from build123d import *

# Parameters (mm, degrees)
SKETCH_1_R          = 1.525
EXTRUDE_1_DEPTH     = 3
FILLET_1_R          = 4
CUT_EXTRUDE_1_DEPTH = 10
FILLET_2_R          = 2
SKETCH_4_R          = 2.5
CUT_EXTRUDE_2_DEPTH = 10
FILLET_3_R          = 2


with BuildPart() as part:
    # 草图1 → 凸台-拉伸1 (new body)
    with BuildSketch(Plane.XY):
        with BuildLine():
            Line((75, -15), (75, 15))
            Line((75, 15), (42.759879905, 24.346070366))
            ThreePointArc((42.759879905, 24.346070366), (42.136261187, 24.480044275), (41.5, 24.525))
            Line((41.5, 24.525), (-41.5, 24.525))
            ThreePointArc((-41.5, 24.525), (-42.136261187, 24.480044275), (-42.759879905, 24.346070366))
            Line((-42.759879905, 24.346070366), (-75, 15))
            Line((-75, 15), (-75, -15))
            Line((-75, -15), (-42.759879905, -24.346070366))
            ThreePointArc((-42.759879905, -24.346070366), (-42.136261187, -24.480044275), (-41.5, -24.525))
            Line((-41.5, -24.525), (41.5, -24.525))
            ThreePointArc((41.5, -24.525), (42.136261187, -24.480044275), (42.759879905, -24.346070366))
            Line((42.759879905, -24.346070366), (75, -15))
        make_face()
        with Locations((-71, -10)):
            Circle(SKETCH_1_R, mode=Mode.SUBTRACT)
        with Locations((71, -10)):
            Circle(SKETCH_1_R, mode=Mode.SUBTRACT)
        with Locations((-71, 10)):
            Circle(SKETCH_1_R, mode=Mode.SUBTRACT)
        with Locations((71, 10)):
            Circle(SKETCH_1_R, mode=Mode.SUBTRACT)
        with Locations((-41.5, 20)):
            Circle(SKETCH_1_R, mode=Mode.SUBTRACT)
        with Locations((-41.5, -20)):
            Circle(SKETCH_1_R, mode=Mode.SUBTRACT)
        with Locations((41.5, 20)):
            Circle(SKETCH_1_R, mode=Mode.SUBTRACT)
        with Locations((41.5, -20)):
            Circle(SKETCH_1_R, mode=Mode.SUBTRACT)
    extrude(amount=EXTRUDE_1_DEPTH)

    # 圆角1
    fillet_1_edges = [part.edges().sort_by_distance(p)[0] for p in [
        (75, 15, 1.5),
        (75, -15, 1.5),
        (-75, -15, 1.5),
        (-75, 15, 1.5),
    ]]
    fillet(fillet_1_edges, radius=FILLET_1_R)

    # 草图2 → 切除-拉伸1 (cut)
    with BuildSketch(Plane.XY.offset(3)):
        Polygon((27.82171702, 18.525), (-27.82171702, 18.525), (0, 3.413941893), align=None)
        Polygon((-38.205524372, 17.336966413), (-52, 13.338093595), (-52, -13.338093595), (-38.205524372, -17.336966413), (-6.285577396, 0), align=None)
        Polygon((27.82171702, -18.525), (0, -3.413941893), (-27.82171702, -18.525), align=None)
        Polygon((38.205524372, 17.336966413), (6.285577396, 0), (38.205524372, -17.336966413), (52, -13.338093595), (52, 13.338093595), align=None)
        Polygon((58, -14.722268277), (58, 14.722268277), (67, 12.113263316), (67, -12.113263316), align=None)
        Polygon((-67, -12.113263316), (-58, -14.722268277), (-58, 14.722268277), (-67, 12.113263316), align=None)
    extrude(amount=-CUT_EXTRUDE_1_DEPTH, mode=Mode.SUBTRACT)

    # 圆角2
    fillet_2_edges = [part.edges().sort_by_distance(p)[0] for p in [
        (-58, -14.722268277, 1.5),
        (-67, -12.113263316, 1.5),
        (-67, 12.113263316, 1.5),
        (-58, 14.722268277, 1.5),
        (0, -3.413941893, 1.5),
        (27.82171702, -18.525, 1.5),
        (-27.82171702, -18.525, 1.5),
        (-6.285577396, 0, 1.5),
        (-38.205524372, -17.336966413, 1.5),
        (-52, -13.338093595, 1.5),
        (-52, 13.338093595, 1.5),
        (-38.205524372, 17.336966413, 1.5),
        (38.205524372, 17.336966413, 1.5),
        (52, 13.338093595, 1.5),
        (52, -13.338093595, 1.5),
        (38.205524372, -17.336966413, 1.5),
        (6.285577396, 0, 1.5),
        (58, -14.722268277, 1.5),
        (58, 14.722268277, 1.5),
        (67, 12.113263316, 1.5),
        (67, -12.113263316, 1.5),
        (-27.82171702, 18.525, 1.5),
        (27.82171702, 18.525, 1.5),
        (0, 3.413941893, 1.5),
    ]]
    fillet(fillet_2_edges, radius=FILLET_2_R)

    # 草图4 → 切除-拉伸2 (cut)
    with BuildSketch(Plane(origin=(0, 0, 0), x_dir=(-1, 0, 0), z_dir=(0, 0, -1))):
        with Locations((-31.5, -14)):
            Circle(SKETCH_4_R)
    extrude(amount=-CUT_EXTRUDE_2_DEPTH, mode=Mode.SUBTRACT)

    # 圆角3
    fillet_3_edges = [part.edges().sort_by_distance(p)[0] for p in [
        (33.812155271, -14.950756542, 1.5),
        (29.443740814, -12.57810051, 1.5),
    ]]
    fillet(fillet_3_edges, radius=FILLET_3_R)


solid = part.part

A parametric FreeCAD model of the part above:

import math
import FreeCAD as App
import Part
import Sketcher

V = App.Vector
Q = App.Units.Quantity


def edges_at(feature, points):
    """Names of the edges that pass closest to the given points."""
    edges = feature.Shape.Edges
    near = lambda p: min(range(len(edges)), key=lambda i: edges[i].distToShape(Part.Vertex(*p))[0])
    return sorted({f"Edge{near(p) + 1}" for p in points})

doc = App.newDocument("Part")
body = doc.addObject("PartDesign::Body", "Body")

# Sketch on XY plane
sketch1 = body.newObject("Sketcher::SketchObject", "Sketch")
sketch1.AttachmentSupport = (doc.getObject("XY_Plane"), [""])
sketch1.MapMode = "FlatFace"
sketch1.addGeometry(Part.LineSegment(V(75, -15, 0), V(75, 15, 0)), False)
sketch1.addGeometry(Part.LineSegment(V(75, 15, 0), V(42.75988, 24.34607, 0)), False)
sketch1.addGeometry(Part.ArcOfCircle(Part.Circle(V(41.5, 20, 0), V(0, 0, 1), 4.525), math.radians(73.833684), math.radians(90)), False)
sketch1.addGeometry(Part.LineSegment(V(41.5, 24.525, 0), V(-41.5, 24.525, 0)), False)
sketch1.addGeometry(Part.ArcOfCircle(Part.Circle(V(-41.5, 20, 0), V(0, 0, 1), 4.525), math.radians(90), math.radians(106.166316)), False)
sketch1.addGeometry(Part.LineSegment(V(-42.75988, 24.34607, 0), V(-75, 15, 0)), False)
sketch1.addGeometry(Part.LineSegment(V(-75, 15, 0), V(-75, -15, 0)), False)
sketch1.addGeometry(Part.LineSegment(V(-75, -15, 0), V(-42.75988, -24.34607, 0)), False)
sketch1.addGeometry(Part.ArcOfCircle(Part.Circle(V(-41.5, -20, 0), V(0, 0, 1), 4.525), math.radians(-106.166316), math.radians(-90)), False)
sketch1.addGeometry(Part.LineSegment(V(-41.5, -24.525, 0), V(41.5, -24.525, 0)), False)
sketch1.addGeometry(Part.ArcOfCircle(Part.Circle(V(41.5, -20, 0), V(0, 0, 1), 4.525), math.radians(-90), math.radians(-73.833684)), False)
sketch1.addGeometry(Part.LineSegment(V(42.75988, -24.34607, 0), V(75, -15, 0)), False)
sketch1.addGeometry(Part.Circle(V(-41.5, -20, 0), V(0, 0, 1), 1.525), False)
sketch1.addGeometry(Part.Circle(V(-71, -10, 0), V(0, 0, 1), 1.525), False)
sketch1.addGeometry(Part.Circle(V(41.5, -20, 0), V(0, 0, 1), 1.525), False)
sketch1.addGeometry(Part.Circle(V(71, -10, 0), V(0, 0, 1), 1.525), False)
sketch1.addGeometry(Part.Circle(V(-71, 10, 0), V(0, 0, 1), 1.525), False)
sketch1.addGeometry(Part.Circle(V(-41.5, 20, 0), V(0, 0, 1), 1.525), False)
sketch1.addGeometry(Part.Circle(V(71, 10, 0), V(0, 0, 1), 1.525), False)
sketch1.addGeometry(Part.Circle(V(41.5, 20, 0), V(0, 0, 1), 1.525), False)
sketch1.addConstraint(Sketcher.Constraint("Coincident", 0, 2, 1, 1))
sketch1.addConstraint(Sketcher.Constraint("Tangent", 1, 2, 2, 1))
sketch1.addConstraint(Sketcher.Constraint("Tangent", 2, 2, 3, 1))
sketch1.addConstraint(Sketcher.Constraint("Tangent", 3, 2, 4, 1))
sketch1.addConstraint(Sketcher.Constraint("Tangent", 4, 2, 5, 1))
sketch1.addConstraint(Sketcher.Constraint("Coincident", 5, 2, 6, 1))
sketch1.addConstraint(Sketcher.Constraint("Coincident", 6, 2, 7, 1))
sketch1.addConstraint(Sketcher.Constraint("Tangent", 7, 2, 8, 1))
sketch1.addConstraint(Sketcher.Constraint("Tangent", 8, 2, 9, 1))
sketch1.addConstraint(Sketcher.Constraint("Tangent", 9, 2, 10, 1))
sketch1.addConstraint(Sketcher.Constraint("Tangent", 10, 2, 11, 1))
sketch1.addConstraint(Sketcher.Constraint("Coincident", 11, 2, 0, 1))
sketch1.addConstraint(Sketcher.Constraint("Vertical", 0))
sketch1.addConstraint(Sketcher.Constraint("Horizontal", 3))
sketch1.addConstraint(Sketcher.Constraint("Vertical", 6))
sketch1.addConstraint(Sketcher.Constraint("Horizontal", 9))
sketch1.addConstraint(Sketcher.Constraint("Coincident", 12, 3, 8, 3))
sketch1.addConstraint(Sketcher.Constraint("Coincident", 14, 3, 10, 3))
sketch1.addConstraint(Sketcher.Constraint("Coincident", 17, 3, 4, 3))
sketch1.addConstraint(Sketcher.Constraint("Coincident", 19, 3, 2, 3))
sketch1.addConstraint(Sketcher.Constraint("Equal", 2, 4))
sketch1.addConstraint(Sketcher.Constraint("Equal", 4, 8))
sketch1.addConstraint(Sketcher.Constraint("Equal", 8, 10))
sketch1.addConstraint(Sketcher.Constraint("Equal", 12, 13))
sketch1.addConstraint(Sketcher.Constraint("Equal", 13, 14))
sketch1.addConstraint(Sketcher.Constraint("Equal", 14, 15))
sketch1.addConstraint(Sketcher.Constraint("Equal", 15, 16))
sketch1.addConstraint(Sketcher.Constraint("Equal", 16, 17))
sketch1.addConstraint(Sketcher.Constraint("Equal", 17, 18))
sketch1.addConstraint(Sketcher.Constraint("Equal", 18, 19))
sketch1.addConstraint(Sketcher.Constraint("Symmetric", 2, 3, 8, 3, -1, 1))
sketch1.addConstraint(Sketcher.Constraint("Symmetric", 15, 3, 16, 3, -1, 1))
sketch1.addConstraint(Sketcher.Constraint("Symmetric", 13, 3, 18, 3, -1, 1))
sketch1.addConstraint(Sketcher.Constraint("Symmetric", 0, 2, 6, 2, -1, 1))
sketch1.addConstraint(Sketcher.Constraint("Symmetric", 4, 2, 10, 2, -1, 1))
sketch1.addConstraint(Sketcher.Constraint("Symmetric", 13, 3, 15, 3, -2))
sketch1.addConstraint(Sketcher.Constraint("Symmetric", 1, 2, 4, 2, -2))
sketch1.addConstraint(Sketcher.Constraint("Diameter", 12, Q("3.05 mm")))
sketch1.addConstraint(Sketcher.Constraint("DistanceX", 3, 2, 3, 1, Q("83 mm")))
sketch1.addConstraint(Sketcher.Constraint("DistanceY", 0, 1, 0, 2, Q("30 mm")))
sketch1.addConstraint(Sketcher.Constraint("DistanceY", -1, 1, 2, 3, Q("20 mm")))
sketch1.addConstraint(Sketcher.Constraint("DistanceX", 13, 3, -1, 1, Q("71 mm")))
sketch1.addConstraint(Sketcher.Constraint("DistanceY", 13, 3, -1, 1, Q("10 mm")))
sketch1.addConstraint(Sketcher.Constraint("DistanceX", -1, 1, 0, 2, Q("75 mm")))
sketch1.addConstraint(Sketcher.Constraint("Radius", 2, Q("4.525 mm")))
pad1 = body.newObject("PartDesign::Pad", "Pad")
pad1.Profile = sketch1
pad1.Length = 3
doc.recompute()

fillet = body.newObject("PartDesign::Fillet", "Fillet")
fillet.Base = (pad1, edges_at(pad1, [
    (75, 15, 1.5),
    (75, -15, 1.5),
    (-75, -15, 1.5),
    (-75, 15, 1.5),
]))
fillet.Radius = 4

# Sketch on XY plane
sketch2 = body.newObject("Sketcher::SketchObject", "Sketch001")
sketch2.AttachmentSupport = (doc.getObject("XY_Plane"), [""])
sketch2.MapMode = "FlatFace"
sketch2.AttachmentOffset = App.Placement(V(0, 0, 3), App.Rotation())
sketch2.addGeometry(Part.LineSegment(V(27.821717, 18.525, 0), V(-27.821717, 18.525, 0)), False)
sketch2.addGeometry(Part.LineSegment(V(-27.821717, 18.525, 0), V(0, 3.413942, 0)), False)
sketch2.addGeometry(Part.LineSegment(V(0, 3.413942, 0), V(27.821717, 18.525, 0)), False)
sketch2.addGeometry(Part.LineSegment(V(-38.205524, 17.336966, 0), V(-52, 13.338094, 0)), False)
sketch2.addGeometry(Part.LineSegment(V(-52, 13.338094, 0), V(-52, -13.338094, 0)), False)
sketch2.addGeometry(Part.LineSegment(V(-52, -13.338094, 0), V(-38.205524, -17.336966, 0)), False)
sketch2.addGeometry(Part.LineSegment(V(-38.205524, -17.336966, 0), V(-6.285577, 0, 0)), False)
sketch2.addGeometry(Part.LineSegment(V(-6.285577, 0, 0), V(-38.205524, 17.336966, 0)), False)
sketch2.addGeometry(Part.LineSegment(V(27.821717, -18.525, 0), V(0, -3.413942, 0)), False)
sketch2.addGeometry(Part.LineSegment(V(0, -3.413942, 0), V(-27.821717, -18.525, 0)), False)
sketch2.addGeometry(Part.LineSegment(V(-27.821717, -18.525, 0), V(27.821717, -18.525, 0)), False)
sketch2.addGeometry(Part.LineSegment(V(38.205524, 17.336966, 0), V(6.285577, 0, 0)), False)
sketch2.addGeometry(Part.LineSegment(V(6.285577, 0, 0), V(38.205524, -17.336966, 0)), False)
sketch2.addGeometry(Part.LineSegment(V(38.205524, -17.336966, 0), V(52, -13.338094, 0)), False)
sketch2.addGeometry(Part.LineSegment(V(52, -13.338094, 0), V(52, 13.338094, 0)), False)
sketch2.addGeometry(Part.LineSegment(V(52, 13.338094, 0), V(38.205524, 17.336966, 0)), False)
sketch2.addGeometry(Part.LineSegment(V(58, 14.722268, 0), V(58, -14.722268, 0)), False)
sketch2.addGeometry(Part.LineSegment(V(58, -14.722268, 0), V(67, -12.113263, 0)), False)
sketch2.addGeometry(Part.LineSegment(V(67, -12.113263, 0), V(67, 12.113263, 0)), False)
sketch2.addGeometry(Part.LineSegment(V(67, 12.113263, 0), V(58, 14.722268, 0)), False)
sketch2.addGeometry(Part.LineSegment(V(-67, -12.113263, 0), V(-58, -14.722268, 0)), False)
sketch2.addGeometry(Part.LineSegment(V(-58, -14.722268, 0), V(-58, 14.722268, 0)), False)
sketch2.addGeometry(Part.LineSegment(V(-58, 14.722268, 0), V(-67, 12.113263, 0)), False)
sketch2.addGeometry(Part.LineSegment(V(-67, 12.113263, 0), V(-67, -12.113263, 0)), False)
sketch2.addConstraint(Sketcher.Constraint("Coincident", 0, 2, 1, 1))
sketch2.addConstraint(Sketcher.Constraint("Coincident", 1, 2, 2, 1))
sketch2.addConstraint(Sketcher.Constraint("Coincident", 2, 2, 0, 1))
sketch2.addConstraint(Sketcher.Constraint("Coincident", 3, 2, 4, 1))
sketch2.addConstraint(Sketcher.Constraint("Coincident", 4, 2, 5, 1))
sketch2.addConstraint(Sketcher.Constraint("Coincident", 5, 2, 6, 1))
sketch2.addConstraint(Sketcher.Constraint("Coincident", 6, 2, 7, 1))
sketch2.addConstraint(Sketcher.Constraint("Coincident", 7, 2, 3, 1))
sketch2.addConstraint(Sketcher.Constraint("Coincident", 8, 2, 9, 1))
sketch2.addConstraint(Sketcher.Constraint("Coincident", 9, 2, 10, 1))
sketch2.addConstraint(Sketcher.Constraint("Coincident", 10, 2, 8, 1))
sketch2.addConstraint(Sketcher.Constraint("Coincident", 11, 2, 12, 1))
sketch2.addConstraint(Sketcher.Constraint("Coincident", 12, 2, 13, 1))
sketch2.addConstraint(Sketcher.Constraint("Coincident", 13, 2, 14, 1))
sketch2.addConstraint(Sketcher.Constraint("Coincident", 14, 2, 15, 1))
sketch2.addConstraint(Sketcher.Constraint("Coincident", 15, 2, 11, 1))
sketch2.addConstraint(Sketcher.Constraint("Coincident", 16, 2, 17, 1))
sketch2.addConstraint(Sketcher.Constraint("Coincident", 17, 2, 18, 1))
sketch2.addConstraint(Sketcher.Constraint("Coincident", 18, 2, 19, 1))
sketch2.addConstraint(Sketcher.Constraint("Coincident", 19, 2, 16, 1))
sketch2.addConstraint(Sketcher.Constraint("Coincident", 20, 2, 21, 1))
sketch2.addConstraint(Sketcher.Constraint("Coincident", 21, 2, 22, 1))
sketch2.addConstraint(Sketcher.Constraint("Coincident", 22, 2, 23, 1))
sketch2.addConstraint(Sketcher.Constraint("Coincident", 23, 2, 20, 1))
sketch2.addConstraint(Sketcher.Constraint("Horizontal", 0))
sketch2.addConstraint(Sketcher.Constraint("Vertical", 4))
sketch2.addConstraint(Sketcher.Constraint("Horizontal", 10))
sketch2.addConstraint(Sketcher.Constraint("Vertical", 14))
sketch2.addConstraint(Sketcher.Constraint("Vertical", 16))
sketch2.addConstraint(Sketcher.Constraint("Vertical", 18))
sketch2.addConstraint(Sketcher.Constraint("Vertical", 21))
sketch2.addConstraint(Sketcher.Constraint("Vertical", 23))
sketch2.addConstraint(Sketcher.Constraint("Symmetric", 1, 2, 8, 2, -1, 1))
sketch2.addConstraint(Sketcher.Constraint("Symmetric", 2, 2, 9, 2, -1, 1))
sketch2.addConstraint(Sketcher.Constraint("Symmetric", 6, 2, 11, 2, -1, 1))
sketch2.addConstraint(Sketcher.Constraint("Symmetric", 7, 2, 12, 2, -1, 1))
sketch2.addConstraint(Sketcher.Constraint("Symmetric", 3, 2, 13, 2, -1, 1))
sketch2.addConstraint(Sketcher.Constraint("Symmetric", 5, 2, 15, 2, -1, 1))
sketch2.addConstraint(Sketcher.Constraint("Symmetric", 19, 2, 20, 2, -1, 1))
sketch2.addConstraint(Sketcher.Constraint("Symmetric", 17, 2, 22, 2, -1, 1))
sketch2.addConstraint(Sketcher.Constraint("Symmetric", 5, 2, 12, 2, -2))
sketch2.addConstraint(Sketcher.Constraint("PointOnObject", 1, 2, -2))
sketch2.addConstraint(Sketcher.Constraint("PointOnObject", 6, 2, -1))
sketch2.addConstraint(Sketcher.Constraint("Parallel", 2, 6))
sketch2.addConstraint(Sketcher.Constraint("Parallel", 1, 7))
sketch2.addConstraint(Sketcher.Constraint("Parallel", 7, 8))
sketch2.addConstraint(Sketcher.Constraint("Parallel", 5, 15))
sketch2.addConstraint(Sketcher.Constraint("Parallel", 13, 17))
sketch2.addConstraint(Sketcher.Constraint("Parallel", 15, 19))
sketch2.addConstraint(Sketcher.Constraint("Parallel", 19, 20))
sketch2.addConstraint(Sketcher.Constraint("Parallel", 17, 22))
sketch2.addConstraint(Sketcher.Constraint("Horizontal", 4, 2, 13, 2))
sketch2.addConstraint(Sketcher.Constraint("Horizontal", 16, 2, 20, 2))
sketch2.addConstraint(Sketcher.Constraint("DistanceX", 3, 2, -1, 1, Q("52 mm")))
sketch2.addConstraint(Sketcher.Constraint("DistanceX", -1, 1, 16, 2, Q("58 mm")))
sketch2.addConstraint(Sketcher.Constraint("DistanceX", -1, 1, 17, 2, Q("67 mm")))
sketch2.addConstraint(Sketcher.Constraint("DistanceY", 10, 2, 2, 2, Q("37.05 mm")))
sketch2.addConstraint(Sketcher.Constraint("Distance", 3, Q("14.3624 mm")))
sketch2.addConstraint(Sketcher.Constraint("DistanceY", 12, 2, 16, 2, Q("2.614698 mm")))
sketch2.addConstraint(Sketcher.Constraint("Distance", 6, Q("36.324281 mm")))
sketch2.addConstraint(Sketcher.Constraint("DistanceX", 0, 2, 0, 1, Q("55.643434 mm")))
sketch2.addConstraint(Sketcher.Constraint("DistanceY", 4, 2, 4, 1, Q("26.676187 mm")))
sketch2.addConstraint(Sketcher.Constraint("DistanceY", 16, 2, 16, 1, Q("29.444537 mm")))
pocket1 = body.newObject("PartDesign::Pocket", "Pocket")
pocket1.Profile = sketch2
pocket1.Length = 10
doc.recompute()

fillet2 = body.newObject("PartDesign::Fillet", "Fillet001")
fillet2.Base = (pocket1, edges_at(pocket1, [
    (-58, -14.722, 1.5),
    (-67, -12.113, 1.5),
    (-67, 12.113, 1.5),
    (-58, 14.722, 1.5),
    (0, -3.414, 1.5),
    (27.822, -18.525, 1.5),
    (-27.822, -18.525, 1.5),
    (-6.286, 0, 1.5),
    (-38.206, -17.337, 1.5),
    (-52, -13.338, 1.5),
    (-52, 13.338, 1.5),
    (-38.206, 17.337, 1.5),
    (38.206, 17.337, 1.5),
    (52, 13.338, 1.5),
    (52, -13.338, 1.5),
    (38.206, -17.337, 1.5),
    (6.286, 0, 1.5),
    (58, -14.722, 1.5),
    (58, 14.722, 1.5),
    (67, 12.113, 1.5),
    (67, -12.113, 1.5),
    (-27.822, 18.525, 1.5),
    (27.822, 18.525, 1.5),
    (0, 3.414, 1.5),
]))
fillet2.Radius = 2

# Sketch on XY plane
sketch3 = body.newObject("Sketcher::SketchObject", "Sketch002")
sketch3.AttachmentSupport = (doc.getObject("XY_Plane"), [""])
sketch3.MapMode = "FlatFace"
sketch3.addGeometry(Part.Circle(V(31.5, -14, 0), V(0, 0, 1), 2.5), False)
sketch3.addConstraint(Sketcher.Constraint("Diameter", 0, Q("5 mm")))
sketch3.addConstraint(Sketcher.Constraint("DistanceY", 0, 3, -1, 1, Q("14 mm")))
sketch3.addConstraint(Sketcher.Constraint("DistanceX", -1, 1, 0, 3, Q("31.5 mm")))
pocket2 = body.newObject("PartDesign::Pocket", "Pocket001")
pocket2.Profile = sketch3
pocket2.Length = 10
pocket2.Reversed = True
doc.recompute()

fillet3 = body.newObject("PartDesign::Fillet", "Fillet002")
fillet3.Base = (pocket2, edges_at(pocket2, [(33.812, -14.951, 1.5), (29.444, -12.578, 1.5)]))
fillet3.Radius = 2

doc.recompute()
